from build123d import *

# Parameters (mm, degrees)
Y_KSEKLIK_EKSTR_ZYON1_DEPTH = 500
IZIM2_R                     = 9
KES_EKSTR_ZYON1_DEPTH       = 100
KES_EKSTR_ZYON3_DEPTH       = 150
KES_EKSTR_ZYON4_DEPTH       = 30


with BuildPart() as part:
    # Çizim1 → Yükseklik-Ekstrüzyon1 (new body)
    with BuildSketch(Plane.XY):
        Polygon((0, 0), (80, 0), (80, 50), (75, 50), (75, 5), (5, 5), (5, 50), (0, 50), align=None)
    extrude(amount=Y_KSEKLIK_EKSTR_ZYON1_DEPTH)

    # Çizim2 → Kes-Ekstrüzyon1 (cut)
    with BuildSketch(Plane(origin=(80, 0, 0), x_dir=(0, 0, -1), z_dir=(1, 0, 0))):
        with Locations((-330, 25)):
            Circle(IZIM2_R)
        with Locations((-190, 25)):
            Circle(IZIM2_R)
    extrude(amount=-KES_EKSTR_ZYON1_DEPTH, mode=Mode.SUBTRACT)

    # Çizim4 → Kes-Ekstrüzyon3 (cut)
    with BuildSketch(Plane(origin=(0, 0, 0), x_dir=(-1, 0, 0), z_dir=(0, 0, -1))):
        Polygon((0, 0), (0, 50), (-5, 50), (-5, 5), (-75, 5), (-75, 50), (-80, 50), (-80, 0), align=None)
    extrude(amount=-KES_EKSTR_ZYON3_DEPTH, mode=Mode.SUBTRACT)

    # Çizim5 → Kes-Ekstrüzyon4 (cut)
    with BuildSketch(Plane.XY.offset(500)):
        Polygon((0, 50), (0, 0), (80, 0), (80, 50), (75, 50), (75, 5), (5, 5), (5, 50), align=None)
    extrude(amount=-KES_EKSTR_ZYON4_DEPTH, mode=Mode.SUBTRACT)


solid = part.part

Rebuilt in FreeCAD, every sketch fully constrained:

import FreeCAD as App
import Part
import Sketcher

V = App.Vector

doc = App.newDocument("Part")
body = doc.addObject("PartDesign::Body", "Body")

# Sketch on XY plane
sketch1 = doc.addObject("Sketcher::SketchObject", "Sketch")
body.addObject(sketch1)
sketch1.AttachmentSupport = (doc.XY_Plane, [""])
sketch1.MapMode = "FlatFace"
sketch1.addGeometry(Part.LineSegment(V(0, 0, 0), V(80, 0, 0)), False)
sketch1.addGeometry(Part.LineSegment(V(80, 0, 0), V(80, 50, 0)), False)
sketch1.addGeometry(Part.LineSegment(V(80, 50, 0), V(75, 50, 0)), False)
sketch1.addGeometry(Part.LineSegment(V(75, 50, 0), V(75, 5, 0)), False)
sketch1.addGeometry(Part.LineSegment(V(75, 5, 0), V(5, 5, 0)), False)
sketch1.addGeometry(Part.LineSegment(V(5, 5, 0), V(5, 50, 0)), False)
sketch1.addGeometry(Part.LineSegment(V(5, 50, 0), V(0, 50, 0)), False)
sketch1.addGeometry(Part.LineSegment(V(0, 50, 0), V(0, 0, 0)), False)
sketch1.addConstraint(Sketcher.Constraint("Coincident", 0, 2, 1, 1))
sketch1.addConstraint(Sketcher.Constraint("Coincident", 1, 2, 2, 1))
sketch1.addConstraint(Sketcher.Constraint("Coincident", 2, 2, 3, 1))
sketch1.addConstraint(Sketcher.Constraint("Coincident", 3, 2, 4, 1))
sketch1.addConstraint(Sketcher.Constraint("Coincident", 4, 2, 5, 1))
sketch1.addConstraint(Sketcher.Constraint("Coincident", 5, 2, 6, 1))
sketch1.addConstraint(Sketcher.Constraint("Coincident", 6, 2, 7, 1))
sketch1.addConstraint(Sketcher.Constraint("Coincident", 7, 2, 0, 1))
sketch1.addConstraint(Sketcher.Constraint("Horizontal", 0))
sketch1.addConstraint(Sketcher.Constraint("Vertical", 1))
sketch1.addConstraint(Sketcher.Constraint("Horizontal", 2))
sketch1.addConstraint(Sketcher.Constraint("Vertical", 3))
sketch1.addConstraint(Sketcher.Constraint("Horizontal", 4))
sketch1.addConstraint(Sketcher.Constraint("Vertical", 5))
sketch1.addConstraint(Sketcher.Constraint("Horizontal", 6))
sketch1.addConstraint(Sketcher.Constraint("Vertical", 7))
sketch1.addConstraint(Sketcher.Constraint("Coincident", 7, 2, -1, 1))
sketch1.addConstraint(Sketcher.Constraint("Horizontal", 2, 2, 5, 2))
sketch1.addConstraint(Sketcher.Constraint("Equal", 2, 6))
sketch1.addConstraint(Sketcher.Constraint("DistanceX", 0, 1, 0, 2, 80.0))
sketch1.addConstraint(Sketcher.Constraint("DistanceX", 2, 2, 2, 1, 5.0))
sketch1.addConstraint(Sketcher.Constraint("DistanceY", 1, 1, 1, 2, 50.0))
sketch1.addConstraint(Sketcher.Constraint("DistanceY", 3, 2, 3, 1, 45.0))
pad1 = doc.addObject("PartDesign::Pad", "Pad")
body.addObject(pad1)
pad1.Profile = sketch1
pad1.Length = 500

# Sketch on YZ plane
sketch2 = doc.addObject("Sketcher::SketchObject", "Sketch001")
body.addObject(sketch2)
sketch2.AttachmentSupport = (doc.YZ_Plane, [""])
sketch2.MapMode = "FlatFace"
sketch2.AttachmentOffset = App.Placement(V(0, 0, 80), App.Rotation())
sketch2.addGeometry(Part.Circle(V(25, 330, 0), V(0, 0, 1), 9), False)
sketch2.addGeometry(Part.Circle(V(25, 190, 0), V(0, 0, 1), 9), False)
sketch2.addConstraint(Sketcher.Constraint("Equal", 0, 1))
sketch2.addConstraint(Sketcher.Constraint("Vertical", 0, 3, 1, 3))
sketch2.addConstraint(Sketcher.Constraint("Diameter", 0, 18.0))
sketch2.addConstraint(Sketcher.Constraint("DistanceX", -1, 1, 0, 3, 25.0))
sketch2.addConstraint(Sketcher.Constraint("DistanceY", -1, 1, 0, 3, 330.0))
sketch2.addConstraint(Sketcher.Constraint("DistanceY", -1, 1, 1, 3, 190.0))
pocket1 = doc.addObject("PartDesign::Pocket", "Pocket")
body.addObject(pocket1)
pocket1.Profile = sketch2
pocket1.Length = 100

# Sketch on XY plane
sketch3 = doc.addObject("Sketcher::SketchObject", "Sketch002")
body.addObject(sketch3)
sketch3.AttachmentSupport = (doc.XY_Plane, [""])
sketch3.MapMode = "FlatFace"
sketch3.addGeometry(Part.LineSegment(V(0, 0, 0), V(0, 50, 0)), False)
sketch3.addGeometry(Part.LineSegment(V(0, 50, 0), V(5, 50, 0)), False)
sketch3.addGeometry(Part.LineSegment(V(5, 50, 0), V(5, 5, 0)), False)
sketch3.addGeometry(Part.LineSegment(V(5, 5, 0), V(75, 5, 0)), False)
sketch3.addGeometry(Part.LineSegment(V(75, 5, 0), V(75, 50, 0)), False)
sketch3.addGeometry(Part.LineSegment(V(75, 50, 0), V(80, 50, 0)), False)
sketch3.addGeometry(Part.LineSegment(V(80, 50, 0), V(80, 0, 0)), False)
sketch3.addGeometry(Part.LineSegment(V(80, 0, 0), V(0, 0, 0)), False)
sketch3.addConstraint(Sketcher.Constraint("Coincident", 0, 2, 1, 1))
sketch3.addConstraint(Sketcher.Constraint("Coincident", 1, 2, 2, 1))
sketch3.addConstraint(Sketcher.Constraint("Coincident", 2, 2, 3, 1))
sketch3.addConstraint(Sketcher.Constraint("Coincident", 3, 2, 4, 1))
sketch3.addConstraint(Sketcher.Constraint("Coincident", 4, 2, 5, 1))
sketch3.addConstraint(Sketcher.Constraint("Coincident", 5, 2, 6, 1))
sketch3.addConstraint(Sketcher.Constraint("Coincident", 6, 2, 7, 1))
sketch3.addConstraint(Sketcher.Constraint("Coincident", 7, 2, 0, 1))
sketch3.addConstraint(Sketcher.Constraint("Vertical", 0))
sketch3.addConstraint(Sketcher.Constraint("Horizontal", 1))
sketch3.addConstraint(Sketcher.Constraint("Vertical", 2))
sketch3.addConstraint(Sketcher.Constraint("Horizontal", 3))
sketch3.addConstraint(Sketcher.Constraint("Vertical", 4))
sketch3.addConstraint(Sketcher.Constraint("Horizontal", 5))
sketch3.addConstraint(Sketcher.Constraint("Vertical", 6))
sketch3.addConstraint(Sketcher.Constraint("Horizontal", 7))
sketch3.addConstraint(Sketcher.Constraint("Coincident", 7, 2, -1, 1))
sketch3.addConstraint(Sketcher.Constraint("Horizontal", 1, 2, 4, 2))
sketch3.addConstraint(Sketcher.Constraint("Equal", 1, 5))
sketch3.addConstraint(Sketcher.Constraint("DistanceX", 1, 1, 1, 2, 5.0))
sketch3.addConstraint(Sketcher.Constraint("DistanceX", 3, 1, 3, 2, 70.0))
sketch3.addConstraint(Sketcher.Constraint("DistanceY", 0, 1, 0, 2, 50.0))
sketch3.addConstraint(Sketcher.Constraint("DistanceY", 2, 2, 2, 1, 45.0))
pocket2 = doc.addObject("PartDesign::Pocket", "Pocket001")
body.addObject(pocket2)
pocket2.Profile = sketch3
pocket2.Length = 150
pocket2.Reversed = True

# Sketch on XY plane
sketch4 = doc.addObject("Sketcher::SketchObject", "Sketch003")
body.addObject(sketch4)
sketch4.AttachmentSupport = (doc.XY_Plane, [""])
sketch4.MapMode = "FlatFace"
sketch4.AttachmentOffset = App.Placement(V(0, 0, 500), App.Rotation())
sketch4.addGeometry(Part.LineSegment(V(0, 50, 0), V(0, 0, 0)), False)
sketch4.addGeometry(Part.LineSegment(V(0, 0, 0), V(80, 0, 0)), False)
sketch4.addGeometry(Part.LineSegment(V(80, 0, 0), V(80, 50, 0)), False)
sketch4.addGeometry(Part.LineSegment(V(80, 50, 0), V(75, 50, 0)), False)
sketch4.addGeometry(Part.LineSegment(V(75, 50, 0), V(75, 5, 0)), False)
sketch4.addGeometry(Part.LineSegment(V(75, 5, 0), V(5, 5, 0)), False)
sketch4.addGeometry(Part.LineSegment(V(5, 5, 0), V(5, 50, 0)), False)
sketch4.addGeometry(Part.LineSegment(V(5, 50, 0), V(0, 50, 0)), False)
sketch4.addConstraint(Sketcher.Constraint("Coincident", 0, 2, 1, 1))
sketch4.addConstraint(Sketcher.Constraint("Coincident", 1, 2, 2, 1))
sketch4.addConstraint(Sketcher.Constraint("Coincident", 2, 2, 3, 1))
sketch4.addConstraint(Sketcher.Constraint("Coincident", 3, 2, 4, 1))
sketch4.addConstraint(Sketcher.Constraint("Coincident", 4, 2, 5, 1))
sketch4.addConstraint(Sketcher.Constraint("Coincident", 5, 2, 6, 1))
sketch4.addConstraint(Sketcher.Constraint("Coincident", 6, 2, 7, 1))
sketch4.addConstraint(Sketcher.Constraint("Coincident", 7, 2, 0, 1))
sketch4.addConstraint(Sketcher.Constraint("Vertical", 0))
sketch4.addConstraint(Sketcher.Constraint("Horizontal", 1))
sketch4.addConstraint(Sketcher.Constraint("Vertical", 2))
sketch4.addConstraint(Sketcher.Constraint("Horizontal", 3))
sketch4.addConstraint(Sketcher.Constraint("Vertical", 4))
sketch4.addConstraint(Sketcher.Constraint("Horizontal", 5))
sketch4.addConstraint(Sketcher.Constraint("Vertical", 6))
sketch4.addConstraint(Sketcher.Constraint("Horizontal", 7))
sketch4.addConstraint(Sketcher.Constraint("Coincident", 0, 2, -1, 1))
sketch4.addConstraint(Sketcher.Constraint("Horizontal", 3, 2, 6, 2))
sketch4.addConstraint(Sketcher.Constraint("Equal", 3, 7))
sketch4.addConstraint(Sketcher.Constraint("DistanceX", 1, 1, 1, 2, 80.0))
sketch4.addConstraint(Sketcher.Constraint("DistanceX", 3, 2, 3, 1, 5.0))
sketch4.addConstraint(Sketcher.Constraint("DistanceY", 0, 2, 0, 1, 50.0))
sketch4.addConstraint(Sketcher.Constraint("DistanceY", 4, 2, 4, 1, 45.0))
pocket3 = doc.addObject("PartDesign::Pocket", "Pocket002")
body.addObject(pocket3)
pocket3.Profile = sketch4
pocket3.Length = 30

doc.recompute()
